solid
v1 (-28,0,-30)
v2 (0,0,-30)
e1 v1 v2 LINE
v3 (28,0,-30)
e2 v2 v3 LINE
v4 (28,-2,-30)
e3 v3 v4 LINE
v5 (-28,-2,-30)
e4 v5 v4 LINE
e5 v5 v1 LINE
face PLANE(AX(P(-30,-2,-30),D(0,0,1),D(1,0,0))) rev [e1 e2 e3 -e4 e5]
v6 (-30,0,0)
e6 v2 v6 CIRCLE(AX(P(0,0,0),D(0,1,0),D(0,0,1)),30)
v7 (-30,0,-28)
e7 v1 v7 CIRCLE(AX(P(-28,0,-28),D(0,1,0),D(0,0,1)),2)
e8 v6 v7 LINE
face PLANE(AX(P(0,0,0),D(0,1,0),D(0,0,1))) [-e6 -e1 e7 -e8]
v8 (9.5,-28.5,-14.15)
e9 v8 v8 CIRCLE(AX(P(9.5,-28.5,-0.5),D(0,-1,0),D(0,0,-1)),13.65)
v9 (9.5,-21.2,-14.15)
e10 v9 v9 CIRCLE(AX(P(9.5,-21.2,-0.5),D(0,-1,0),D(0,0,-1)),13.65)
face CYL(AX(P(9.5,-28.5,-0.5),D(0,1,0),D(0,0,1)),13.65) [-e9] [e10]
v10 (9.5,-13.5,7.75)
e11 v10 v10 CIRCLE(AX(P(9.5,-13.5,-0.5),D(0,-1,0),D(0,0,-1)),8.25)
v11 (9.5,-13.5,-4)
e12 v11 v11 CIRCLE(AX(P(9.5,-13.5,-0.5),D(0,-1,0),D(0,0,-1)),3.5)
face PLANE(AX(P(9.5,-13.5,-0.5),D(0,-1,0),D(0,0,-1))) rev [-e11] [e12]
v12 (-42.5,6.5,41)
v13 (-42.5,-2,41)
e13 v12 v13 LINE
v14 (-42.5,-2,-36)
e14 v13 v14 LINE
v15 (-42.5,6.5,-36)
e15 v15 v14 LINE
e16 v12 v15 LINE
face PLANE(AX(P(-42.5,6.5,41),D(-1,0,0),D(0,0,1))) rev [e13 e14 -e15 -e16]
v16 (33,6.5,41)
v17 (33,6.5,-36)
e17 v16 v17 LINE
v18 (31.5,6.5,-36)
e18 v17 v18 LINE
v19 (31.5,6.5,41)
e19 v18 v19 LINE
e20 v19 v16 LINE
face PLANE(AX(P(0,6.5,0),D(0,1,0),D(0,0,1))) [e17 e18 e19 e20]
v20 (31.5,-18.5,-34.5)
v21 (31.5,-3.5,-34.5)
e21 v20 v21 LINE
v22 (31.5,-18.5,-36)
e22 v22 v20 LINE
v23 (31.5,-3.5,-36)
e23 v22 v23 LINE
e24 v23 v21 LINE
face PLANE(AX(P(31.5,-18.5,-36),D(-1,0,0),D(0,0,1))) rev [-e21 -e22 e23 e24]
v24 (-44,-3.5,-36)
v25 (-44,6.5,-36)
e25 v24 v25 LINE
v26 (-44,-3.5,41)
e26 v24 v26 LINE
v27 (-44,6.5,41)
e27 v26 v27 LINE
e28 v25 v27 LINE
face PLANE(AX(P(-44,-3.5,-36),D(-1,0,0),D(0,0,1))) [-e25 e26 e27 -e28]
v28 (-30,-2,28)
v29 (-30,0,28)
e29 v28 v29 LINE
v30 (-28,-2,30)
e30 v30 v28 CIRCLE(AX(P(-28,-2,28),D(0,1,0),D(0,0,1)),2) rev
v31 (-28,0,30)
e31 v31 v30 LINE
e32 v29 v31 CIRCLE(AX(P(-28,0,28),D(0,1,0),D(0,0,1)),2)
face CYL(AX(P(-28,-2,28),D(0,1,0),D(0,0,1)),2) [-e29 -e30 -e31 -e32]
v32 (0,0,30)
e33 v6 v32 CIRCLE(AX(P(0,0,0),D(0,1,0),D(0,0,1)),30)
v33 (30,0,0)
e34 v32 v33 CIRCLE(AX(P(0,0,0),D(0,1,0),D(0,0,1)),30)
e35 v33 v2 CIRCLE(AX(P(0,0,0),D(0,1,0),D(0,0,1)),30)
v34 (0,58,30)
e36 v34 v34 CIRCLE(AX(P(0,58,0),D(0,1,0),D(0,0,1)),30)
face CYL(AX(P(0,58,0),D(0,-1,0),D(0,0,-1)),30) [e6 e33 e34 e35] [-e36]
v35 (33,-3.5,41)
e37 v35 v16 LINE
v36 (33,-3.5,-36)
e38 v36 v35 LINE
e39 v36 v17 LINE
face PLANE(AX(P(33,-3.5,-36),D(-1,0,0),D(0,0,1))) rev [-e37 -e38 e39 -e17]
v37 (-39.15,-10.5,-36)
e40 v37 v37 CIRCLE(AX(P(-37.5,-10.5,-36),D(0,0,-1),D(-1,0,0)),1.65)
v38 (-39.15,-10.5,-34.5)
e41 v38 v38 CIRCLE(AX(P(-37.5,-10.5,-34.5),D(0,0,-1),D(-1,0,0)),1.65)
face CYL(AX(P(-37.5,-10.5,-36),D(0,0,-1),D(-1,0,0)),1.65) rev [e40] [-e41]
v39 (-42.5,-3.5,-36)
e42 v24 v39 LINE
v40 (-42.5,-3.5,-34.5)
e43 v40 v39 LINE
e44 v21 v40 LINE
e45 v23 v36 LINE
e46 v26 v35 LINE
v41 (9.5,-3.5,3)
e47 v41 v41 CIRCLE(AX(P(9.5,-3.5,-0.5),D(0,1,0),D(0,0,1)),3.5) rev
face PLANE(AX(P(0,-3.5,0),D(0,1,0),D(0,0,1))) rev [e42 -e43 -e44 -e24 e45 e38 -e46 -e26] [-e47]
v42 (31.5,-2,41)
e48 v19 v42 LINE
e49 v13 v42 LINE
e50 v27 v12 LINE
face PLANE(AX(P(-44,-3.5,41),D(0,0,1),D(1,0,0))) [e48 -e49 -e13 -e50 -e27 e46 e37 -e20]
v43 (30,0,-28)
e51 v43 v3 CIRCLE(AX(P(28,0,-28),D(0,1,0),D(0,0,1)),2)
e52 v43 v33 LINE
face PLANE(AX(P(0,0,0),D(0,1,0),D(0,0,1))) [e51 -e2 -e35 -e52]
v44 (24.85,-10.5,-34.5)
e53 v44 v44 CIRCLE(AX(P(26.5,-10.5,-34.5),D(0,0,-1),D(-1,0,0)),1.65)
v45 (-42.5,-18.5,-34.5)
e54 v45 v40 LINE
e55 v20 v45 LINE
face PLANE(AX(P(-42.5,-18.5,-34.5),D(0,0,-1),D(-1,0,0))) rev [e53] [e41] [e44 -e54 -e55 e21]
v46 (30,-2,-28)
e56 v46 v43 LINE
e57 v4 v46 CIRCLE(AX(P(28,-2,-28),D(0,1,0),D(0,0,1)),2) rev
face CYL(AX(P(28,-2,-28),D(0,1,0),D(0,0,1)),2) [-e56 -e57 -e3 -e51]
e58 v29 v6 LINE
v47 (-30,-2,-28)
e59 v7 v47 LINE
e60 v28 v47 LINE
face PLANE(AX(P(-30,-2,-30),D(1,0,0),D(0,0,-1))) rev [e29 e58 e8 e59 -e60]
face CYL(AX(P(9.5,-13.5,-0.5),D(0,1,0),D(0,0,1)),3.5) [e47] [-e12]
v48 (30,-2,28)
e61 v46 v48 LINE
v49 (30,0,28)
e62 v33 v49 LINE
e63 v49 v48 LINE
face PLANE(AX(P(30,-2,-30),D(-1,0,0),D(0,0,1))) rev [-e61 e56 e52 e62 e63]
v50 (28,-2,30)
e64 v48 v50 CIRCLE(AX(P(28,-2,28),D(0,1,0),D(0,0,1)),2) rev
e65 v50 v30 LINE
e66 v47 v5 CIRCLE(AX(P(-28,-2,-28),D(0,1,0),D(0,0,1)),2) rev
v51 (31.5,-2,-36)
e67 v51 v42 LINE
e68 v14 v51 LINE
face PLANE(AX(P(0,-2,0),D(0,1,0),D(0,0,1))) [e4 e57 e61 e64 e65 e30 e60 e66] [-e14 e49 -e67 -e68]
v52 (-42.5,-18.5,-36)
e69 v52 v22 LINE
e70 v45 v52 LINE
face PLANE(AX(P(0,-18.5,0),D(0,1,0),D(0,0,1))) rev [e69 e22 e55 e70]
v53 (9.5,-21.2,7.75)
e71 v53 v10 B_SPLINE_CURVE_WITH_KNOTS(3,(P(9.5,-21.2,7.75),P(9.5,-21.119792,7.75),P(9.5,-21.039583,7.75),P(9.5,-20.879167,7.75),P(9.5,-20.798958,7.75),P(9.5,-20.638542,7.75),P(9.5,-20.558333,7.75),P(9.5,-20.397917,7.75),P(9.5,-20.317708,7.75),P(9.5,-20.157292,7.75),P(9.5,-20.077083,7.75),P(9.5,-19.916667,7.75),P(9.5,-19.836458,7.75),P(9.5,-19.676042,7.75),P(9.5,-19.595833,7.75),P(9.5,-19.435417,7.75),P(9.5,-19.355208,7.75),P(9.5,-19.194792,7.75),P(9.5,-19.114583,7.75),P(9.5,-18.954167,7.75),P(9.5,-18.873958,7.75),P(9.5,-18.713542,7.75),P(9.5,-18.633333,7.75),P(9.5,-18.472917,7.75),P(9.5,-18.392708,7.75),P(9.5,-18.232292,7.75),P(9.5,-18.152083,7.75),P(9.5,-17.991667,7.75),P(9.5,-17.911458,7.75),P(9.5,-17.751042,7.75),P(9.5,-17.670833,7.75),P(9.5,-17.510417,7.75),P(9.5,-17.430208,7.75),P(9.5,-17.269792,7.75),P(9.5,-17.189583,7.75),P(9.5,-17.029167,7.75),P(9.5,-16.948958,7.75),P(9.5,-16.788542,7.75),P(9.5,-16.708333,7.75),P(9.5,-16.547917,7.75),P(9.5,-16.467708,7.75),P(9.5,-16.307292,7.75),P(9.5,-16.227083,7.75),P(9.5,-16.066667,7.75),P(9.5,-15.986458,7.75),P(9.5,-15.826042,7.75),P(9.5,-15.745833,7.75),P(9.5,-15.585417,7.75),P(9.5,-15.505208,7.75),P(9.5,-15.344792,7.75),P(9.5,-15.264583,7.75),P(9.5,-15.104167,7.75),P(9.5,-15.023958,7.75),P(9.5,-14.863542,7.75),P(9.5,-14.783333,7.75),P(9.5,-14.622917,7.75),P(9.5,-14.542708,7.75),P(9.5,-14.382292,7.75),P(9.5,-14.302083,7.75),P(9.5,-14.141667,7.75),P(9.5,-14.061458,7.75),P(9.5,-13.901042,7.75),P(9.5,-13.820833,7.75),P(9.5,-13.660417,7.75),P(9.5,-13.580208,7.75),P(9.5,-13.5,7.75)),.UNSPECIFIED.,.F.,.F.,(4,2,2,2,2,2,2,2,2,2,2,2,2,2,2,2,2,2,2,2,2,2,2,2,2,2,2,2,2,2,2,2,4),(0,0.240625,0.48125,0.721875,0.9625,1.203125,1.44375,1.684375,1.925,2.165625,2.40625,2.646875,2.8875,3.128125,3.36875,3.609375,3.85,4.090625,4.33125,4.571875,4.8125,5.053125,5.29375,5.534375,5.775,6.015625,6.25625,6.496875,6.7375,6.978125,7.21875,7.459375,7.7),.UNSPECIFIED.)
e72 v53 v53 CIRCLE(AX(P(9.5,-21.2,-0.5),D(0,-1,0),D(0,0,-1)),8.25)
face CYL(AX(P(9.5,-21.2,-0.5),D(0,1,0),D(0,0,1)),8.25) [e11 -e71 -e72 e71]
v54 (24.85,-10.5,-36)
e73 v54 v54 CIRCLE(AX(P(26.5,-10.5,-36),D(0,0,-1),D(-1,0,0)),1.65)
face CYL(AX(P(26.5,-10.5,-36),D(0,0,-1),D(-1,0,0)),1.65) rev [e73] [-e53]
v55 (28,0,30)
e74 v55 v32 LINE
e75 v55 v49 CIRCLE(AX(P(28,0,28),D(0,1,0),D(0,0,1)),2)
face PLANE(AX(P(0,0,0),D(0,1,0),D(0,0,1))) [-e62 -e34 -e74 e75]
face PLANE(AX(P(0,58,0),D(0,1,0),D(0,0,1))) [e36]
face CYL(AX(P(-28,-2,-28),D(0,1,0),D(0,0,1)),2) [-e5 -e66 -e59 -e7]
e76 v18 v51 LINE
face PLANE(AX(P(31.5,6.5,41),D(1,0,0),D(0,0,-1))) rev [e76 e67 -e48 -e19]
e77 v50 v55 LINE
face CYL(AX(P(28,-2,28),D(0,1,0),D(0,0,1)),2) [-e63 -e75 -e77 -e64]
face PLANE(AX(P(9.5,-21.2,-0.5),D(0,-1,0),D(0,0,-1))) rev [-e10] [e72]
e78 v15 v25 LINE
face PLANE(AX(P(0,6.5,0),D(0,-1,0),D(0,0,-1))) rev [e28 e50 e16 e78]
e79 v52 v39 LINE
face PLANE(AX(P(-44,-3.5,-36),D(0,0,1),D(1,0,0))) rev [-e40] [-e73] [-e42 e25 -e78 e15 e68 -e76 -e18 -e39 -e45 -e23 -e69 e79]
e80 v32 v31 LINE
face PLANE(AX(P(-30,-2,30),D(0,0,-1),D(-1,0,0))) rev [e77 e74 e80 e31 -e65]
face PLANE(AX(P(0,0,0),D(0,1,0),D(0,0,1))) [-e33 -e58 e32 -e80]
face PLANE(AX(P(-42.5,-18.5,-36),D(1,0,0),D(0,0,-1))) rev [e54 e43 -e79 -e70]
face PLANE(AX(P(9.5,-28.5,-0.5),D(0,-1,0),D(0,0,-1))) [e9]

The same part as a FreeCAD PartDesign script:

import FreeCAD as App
import Part
import Sketcher

V = App.Vector


def edges_at(feature, points):
    """Names of the edges that pass closest to the given points."""
    edges = feature.Shape.Edges
    near = lambda p: min(range(len(edges)), key=lambda i: edges[i].distToShape(Part.Vertex(*p))[0])
    return sorted({f"Edge{near(p) + 1}" for p in points})


def add_polygon(sketch, points):
    """Adds a closed chain of lines whose ends are joined by coincident constraints."""
    first, n = sketch.GeometryCount, len(points)
    for a, b in zip(points, points[1:] + points[:1]):
        sketch.addGeometry(Part.LineSegment(App.Vector(*a, 0), App.Vector(*b, 0)), False)
    for i in range(n):
        sketch.addConstraint(Sketcher.Constraint("Coincident", first + i, 2, first + (i + 1) % n, 1))

doc = App.newDocument("Part")
params = doc.addObject("Spreadsheet::Sheet", "Params")
for row, (alias, value) in enumerate([
    ("sketch1_diameter", "60 mm"),
    ("pad1_length", "58 mm"),
    ("sketch2_width", "60 mm"),
    ("pad2_length", "2 mm"),
    ("fillet_radius", "2 mm"),
    ("sketch3_width", "77 mm"),
    ("pad3_length", "1.5 mm"),
    ("sketch4_height", "77 mm"),
    ("sketch4_width", "1.5 mm"),
    ("pad4_length", "8.5 mm"),
    ("sketch5_width", "74 mm"),
    ("sketch5_height", "1.5 mm"),
    ("pad5_length", "15 mm"),
    ("sketch6_diameter", "7 mm"),
    ("pad6_length", "10 mm"),
    ("sketch7_diameter", "16.5 mm"),
    ("pad7_length", "7.7 mm"),
    ("sketch8_diameter", "27.3 mm"),
    ("pad8_length", "7.3 mm"),
    ("sketch9_diameter", "3.3 mm"),
    ("hole_diameter", "3.3 mm"),
], start=1):
    params.set(f"A{row}", alias)
    params.set(f"B{row}", "=" + value)
    params.setAlias(f"B{row}", alias)

body = doc.addObject("PartDesign::Body", "Body")

# Sketch on XZ plane
sketch1 = body.newObject("Sketcher::SketchObject", "Sketch")
sketch1.AttachmentSupport = (doc.getObject("XZ_Plane"), [""])
sketch1.MapMode = "FlatFace"
sketch1.addGeometry(Part.Circle(V(0, 0, 0), V(0, 0, 1), 30), False)
sketch1.addConstraint([
    Sketcher.Constraint("Coincident", 0, 3, -1, 1),
    Sketcher.Constraint("Diameter", 0, 60.0),
])
sketch1.setExpression("Constraints[1]", "Params.sketch1_diameter")
pad1 = body.newObject("PartDesign::Pad", "Pad")
pad1.Profile = sketch1
pad1.setExpression("Length", "Params.pad1_length")
pad1.Reversed = True

# Sketch on XZ plane
sketch2 = body.newObject("Sketcher::SketchObject", "Sketch001")
sketch2.AttachmentSupport = (doc.getObject("XZ_Plane"), [""])
sketch2.MapMode = "FlatFace"
add_polygon(sketch2, [(-30, 30), (-30, -30), (30, -30), (30, 30)])  # lines 0-3
sketch2.addConstraint([
    Sketcher.Constraint("Vertical", 0),
    Sketcher.Constraint("Horizontal", 1),
    Sketcher.Constraint("Vertical", 2),
    Sketcher.Constraint("Horizontal", 3),
    Sketcher.Constraint("Symmetric", 0, 2, 2, 2, -1, 1),
    Sketcher.Constraint("Equal", 3, 0),
    Sketcher.Constraint("DistanceX", 1, 1, 1, 2, 60.0),
])
sketch2.setExpression("Constraints[10]", "Params.sketch2_width")
pad2 = body.newObject("PartDesign::Pad", "Pad001")
pad2.Profile = sketch2
pad2.setExpression("Length", "Params.pad2_length")
doc.recompute()

fillet = body.newObject("PartDesign::Fillet", "Fillet")
fillet.Base = (pad2, edges_at(pad2, [
    (30, -1, -30),
    (30, -1, 30),
    (-30, -1, 30),
    (-30, -1, -30),
]))
fillet.setExpression("Radius", "Params.fillet_radius")

# Sketch on XZ plane
sketch3 = body.newObject("Sketcher::SketchObject", "Sketch002")
sketch3.AttachmentSupport = (doc.getObject("XZ_Plane"), [""])
sketch3.MapMode = "FlatFace"
sketch3.AttachmentOffset = App.Placement(V(0, 0, 2), App.Rotation())
add_polygon(sketch3, [(-44, 41), (-44, -36), (33, -36), (33, 41)])  # lines 0-3
sketch3.addConstraint([
    Sketcher.Constraint("Vertical", 0),
    Sketcher.Constraint("Horizontal", 1),
    Sketcher.Constraint("Vertical", 2),
    Sketcher.Constraint("Horizontal", 3),
    Sketcher.Constraint("Equal", 3, 0),
    Sketcher.Constraint("DistanceX", 1, 1, 1, 2, 77.0),
    Sketcher.Constraint("DistanceX", 0, 2, -1, 1, 44.0),
    Sketcher.Constraint("DistanceY", 0, 2, -1, 1, 36.0),
])
sketch3.setExpression("Constraints[9]", "Params.sketch3_width")
pad3 = body.newObject("PartDesign::Pad", "Pad002")
pad3.Profile = sketch3
pad3.setExpression("Length", "Params.pad3_length")

# Sketch on XZ plane
sketch4 = body.newObject("Sketcher::SketchObject", "Sketch003")
sketch4.AttachmentSupport = (doc.getObject("XZ_Plane"), [""])
sketch4.MapMode = "FlatFace"
sketch4.AttachmentOffset = App.Placement(V(0, 0, 2), App.Rotation())
add_polygon(sketch4, [(31.5, -36), (31.5, 41), (33, 41), (33, -36)])  # lines 0-3
add_polygon(sketch4, [(-44, -36), (-44, 41), (-42.5, 41), (-42.5, -36)])  # lines 4-7
sketch4.addConstraint([
    Sketcher.Constraint("Vertical", 0),
    Sketcher.Constraint("Horizontal", 1),
    Sketcher.Constraint("Vertical", 2),
    Sketcher.Constraint("Horizontal", 3),
    Sketcher.Constraint("Vertical", 4),
    Sketcher.Constraint("Horizontal", 5),
    Sketcher.Constraint("Vertical", 6),
    Sketcher.Constraint("Horizontal", 7),
    Sketcher.Constraint("Horizontal", 1, 2, 4, 2),
    Sketcher.Constraint("Horizontal", 3, 2, 6, 2),
    Sketcher.Constraint("Equal", 3, 5),
    Sketcher.Constraint("DistanceY", 0, 1, 0, 2, 77.0),
    Sketcher.Constraint("DistanceX", 1, 1, 1, 2, 1.5),
    Sketcher.Constraint("DistanceY", -1, 1, 0, 2, 41.0),
    Sketcher.Constraint("DistanceX", -1, 1, 1, 2, 33.0),
    Sketcher.Constraint("DistanceX", 4, 2, -1, 1, 44.0),
])
sketch4.setExpression("Constraints[19]", "Params.sketch4_height")
sketch4.setExpression("Constraints[20]", "Params.sketch4_width")
pad4 = body.newObject("PartDesign::Pad", "Pad003")
pad4.Profile = sketch4
pad4.setExpression("Length", "Params.pad4_length")
pad4.Reversed = True

# Sketch on XZ plane
sketch5 = body.newObject("Sketcher::SketchObject", "Sketch004")
sketch5.AttachmentSupport = (doc.getObject("XZ_Plane"), [""])
sketch5.MapMode = "FlatFace"
sketch5.AttachmentOffset = App.Placement(V(0, 0, 3.5), App.Rotation())
add_polygon(sketch5, [(-42.5, -34.5), (-42.5, -36), (31.5, -36), (31.5, -34.5)])  # lines 0-3
sketch5.addConstraint([
    Sketcher.Constraint("Vertical", 0),
    Sketcher.Constraint("Horizontal", 1),
    Sketcher.Constraint("Vertical", 2),
    Sketcher.Constraint("Horizontal", 3),
    Sketcher.Constraint("DistanceX", 1, 1, 1, 2, 74.0),
    Sketcher.Constraint("DistanceY", 0, 2, 0, 1, 1.5),
    Sketcher.Constraint("DistanceY", 0, 2, -1, 1, 36.0),
    Sketcher.Constraint("DistanceX", 0, 2, -1, 1, 42.5),
])
sketch5.setExpression("Constraints[8]", "Params.sketch5_width")
sketch5.setExpression("Constraints[9]", "Params.sketch5_height")
pad5 = body.newObject("PartDesign::Pad", "Pad004")
pad5.Profile = sketch5
pad5.setExpression("Length", "Params.pad5_length")

# Sketch on XZ plane
sketch6 = body.newObject("Sketcher::SketchObject", "Sketch005")
sketch6.AttachmentSupport = (doc.getObject("XZ_Plane"), [""])
sketch6.MapMode = "FlatFace"
sketch6.AttachmentOffset = App.Placement(V(0, 0, 3.5), App.Rotation())
sketch6.addGeometry(Part.Circle(V(9.5, -0.5, 0), V(0, 0, 1), 3.5), False)
sketch6.addConstraint([
    Sketcher.Constraint("Diameter", 0, 7.0),
    Sketcher.Constraint("DistanceX", -1, 1, 0, 3, 9.5),
    Sketcher.Constraint("DistanceY", 0, 3, -1, 1, 0.5),
])
sketch6.setExpression("Constraints[0]", "Params.sketch6_diameter")
pad6 = body.newObject("PartDesign::Pad", "Pad005")
pad6.Profile = sketch6
pad6.setExpression("Length", "Params.pad6_length")

# Sketch on XZ plane
sketch7 = body.newObject("Sketcher::SketchObject", "Sketch006")
sketch7.AttachmentSupport = (doc.getObject("XZ_Plane"), [""])
sketch7.MapMode = "FlatFace"
sketch7.AttachmentOffset = App.Placement(V(0, 0, 13.5), App.Rotation())
sketch7.addGeometry(Part.Circle(V(10, 0, 0), V(0, 0, 1), 8), False)
sketch7.addConstraint([
    Sketcher.Constraint("Diameter", 0, 16.5),
    Sketcher.Constraint("DistanceX", -1, 1, 0, 3, 9.5),
    Sketcher.Constraint("DistanceY", 0, 3, -1, 1, 0.5),
])
sketch7.setExpression("Constraints[0]", "Params.sketch7_diameter")
pad7 = body.newObject("PartDesign::Pad", "Pad006")
pad7.Profile = sketch7
pad7.setExpression("Length", "Params.pad7_length")

# Sketch on XZ plane
sketch8 = body.newObject("Sketcher::SketchObject", "Sketch007")
sketch8.AttachmentSupport = (doc.getObject("XZ_Plane"), [""])
sketch8.MapMode = "FlatFace"
sketch8.AttachmentOffset = App.Placement(V(0, 0, 21.2), App.Rotation())
sketch8.addGeometry(Part.Circle(V(10, 0, 0), V(0, 0, 1), 14), False)
sketch8.addConstraint([
    Sketcher.Constraint("Diameter", 0, 27.3),
    Sketcher.Constraint("DistanceX", -1, 1, 0, 3, 9.5),
    Sketcher.Constraint("DistanceY", 0, 3, -1, 1, 0.5),
])
sketch8.setExpression("Constraints[0]", "Params.sketch8_diameter")
pad8 = body.newObject("PartDesign::Pad", "Pad007")
pad8.Profile = sketch8
pad8.setExpression("Length", "Params.pad8_length")

# Sketch on XY plane
sketch9 = body.newObject("Sketcher::SketchObject", "Sketch008")
sketch9.AttachmentSupport = (doc.getObject("XY_Plane"), [""])
sketch9.MapMode = "FlatFace"
sketch9.AttachmentOffset = App.Placement(V(0, 0, -36), App.Rotation())
sketch9.addGeometry([
    Part.Circle(V(-37.5, -10.5, 0), V(0, 0, 1), 1.6),
    Part.Circle(V(26.5, -10.5, 0), V(0, 0, 1), 1.6),
], False)
sketch9.addConstraint([
    Sketcher.Constraint("Equal", 0, 1),
    Sketcher.Constraint("Horizontal", 0, 3, 1, 3),
    Sketcher.Constraint("Diameter", 0, 3.3),
    Sketcher.Constraint("DistanceX", 0, 3, 1, 3, 64.0),
    Sketcher.Constraint("DistanceX", 0, 3, -1, 1, 37.5),
    Sketcher.Constraint("DistanceY", 0, 3, -1, 1, 10.5),
])
sketch9.setExpression("Constraints[2]", "Params.sketch9_diameter")
doc.recompute()
hole = body.newObject("PartDesign::Hole", "Hole")
hole.Profile = sketch9
hole.ThreadType = "None"
hole.setExpression("Diameter", "Params.hole_diameter")
hole.DepthType = "ThroughAll"
hole.Reversed = True

doc.recompute()
